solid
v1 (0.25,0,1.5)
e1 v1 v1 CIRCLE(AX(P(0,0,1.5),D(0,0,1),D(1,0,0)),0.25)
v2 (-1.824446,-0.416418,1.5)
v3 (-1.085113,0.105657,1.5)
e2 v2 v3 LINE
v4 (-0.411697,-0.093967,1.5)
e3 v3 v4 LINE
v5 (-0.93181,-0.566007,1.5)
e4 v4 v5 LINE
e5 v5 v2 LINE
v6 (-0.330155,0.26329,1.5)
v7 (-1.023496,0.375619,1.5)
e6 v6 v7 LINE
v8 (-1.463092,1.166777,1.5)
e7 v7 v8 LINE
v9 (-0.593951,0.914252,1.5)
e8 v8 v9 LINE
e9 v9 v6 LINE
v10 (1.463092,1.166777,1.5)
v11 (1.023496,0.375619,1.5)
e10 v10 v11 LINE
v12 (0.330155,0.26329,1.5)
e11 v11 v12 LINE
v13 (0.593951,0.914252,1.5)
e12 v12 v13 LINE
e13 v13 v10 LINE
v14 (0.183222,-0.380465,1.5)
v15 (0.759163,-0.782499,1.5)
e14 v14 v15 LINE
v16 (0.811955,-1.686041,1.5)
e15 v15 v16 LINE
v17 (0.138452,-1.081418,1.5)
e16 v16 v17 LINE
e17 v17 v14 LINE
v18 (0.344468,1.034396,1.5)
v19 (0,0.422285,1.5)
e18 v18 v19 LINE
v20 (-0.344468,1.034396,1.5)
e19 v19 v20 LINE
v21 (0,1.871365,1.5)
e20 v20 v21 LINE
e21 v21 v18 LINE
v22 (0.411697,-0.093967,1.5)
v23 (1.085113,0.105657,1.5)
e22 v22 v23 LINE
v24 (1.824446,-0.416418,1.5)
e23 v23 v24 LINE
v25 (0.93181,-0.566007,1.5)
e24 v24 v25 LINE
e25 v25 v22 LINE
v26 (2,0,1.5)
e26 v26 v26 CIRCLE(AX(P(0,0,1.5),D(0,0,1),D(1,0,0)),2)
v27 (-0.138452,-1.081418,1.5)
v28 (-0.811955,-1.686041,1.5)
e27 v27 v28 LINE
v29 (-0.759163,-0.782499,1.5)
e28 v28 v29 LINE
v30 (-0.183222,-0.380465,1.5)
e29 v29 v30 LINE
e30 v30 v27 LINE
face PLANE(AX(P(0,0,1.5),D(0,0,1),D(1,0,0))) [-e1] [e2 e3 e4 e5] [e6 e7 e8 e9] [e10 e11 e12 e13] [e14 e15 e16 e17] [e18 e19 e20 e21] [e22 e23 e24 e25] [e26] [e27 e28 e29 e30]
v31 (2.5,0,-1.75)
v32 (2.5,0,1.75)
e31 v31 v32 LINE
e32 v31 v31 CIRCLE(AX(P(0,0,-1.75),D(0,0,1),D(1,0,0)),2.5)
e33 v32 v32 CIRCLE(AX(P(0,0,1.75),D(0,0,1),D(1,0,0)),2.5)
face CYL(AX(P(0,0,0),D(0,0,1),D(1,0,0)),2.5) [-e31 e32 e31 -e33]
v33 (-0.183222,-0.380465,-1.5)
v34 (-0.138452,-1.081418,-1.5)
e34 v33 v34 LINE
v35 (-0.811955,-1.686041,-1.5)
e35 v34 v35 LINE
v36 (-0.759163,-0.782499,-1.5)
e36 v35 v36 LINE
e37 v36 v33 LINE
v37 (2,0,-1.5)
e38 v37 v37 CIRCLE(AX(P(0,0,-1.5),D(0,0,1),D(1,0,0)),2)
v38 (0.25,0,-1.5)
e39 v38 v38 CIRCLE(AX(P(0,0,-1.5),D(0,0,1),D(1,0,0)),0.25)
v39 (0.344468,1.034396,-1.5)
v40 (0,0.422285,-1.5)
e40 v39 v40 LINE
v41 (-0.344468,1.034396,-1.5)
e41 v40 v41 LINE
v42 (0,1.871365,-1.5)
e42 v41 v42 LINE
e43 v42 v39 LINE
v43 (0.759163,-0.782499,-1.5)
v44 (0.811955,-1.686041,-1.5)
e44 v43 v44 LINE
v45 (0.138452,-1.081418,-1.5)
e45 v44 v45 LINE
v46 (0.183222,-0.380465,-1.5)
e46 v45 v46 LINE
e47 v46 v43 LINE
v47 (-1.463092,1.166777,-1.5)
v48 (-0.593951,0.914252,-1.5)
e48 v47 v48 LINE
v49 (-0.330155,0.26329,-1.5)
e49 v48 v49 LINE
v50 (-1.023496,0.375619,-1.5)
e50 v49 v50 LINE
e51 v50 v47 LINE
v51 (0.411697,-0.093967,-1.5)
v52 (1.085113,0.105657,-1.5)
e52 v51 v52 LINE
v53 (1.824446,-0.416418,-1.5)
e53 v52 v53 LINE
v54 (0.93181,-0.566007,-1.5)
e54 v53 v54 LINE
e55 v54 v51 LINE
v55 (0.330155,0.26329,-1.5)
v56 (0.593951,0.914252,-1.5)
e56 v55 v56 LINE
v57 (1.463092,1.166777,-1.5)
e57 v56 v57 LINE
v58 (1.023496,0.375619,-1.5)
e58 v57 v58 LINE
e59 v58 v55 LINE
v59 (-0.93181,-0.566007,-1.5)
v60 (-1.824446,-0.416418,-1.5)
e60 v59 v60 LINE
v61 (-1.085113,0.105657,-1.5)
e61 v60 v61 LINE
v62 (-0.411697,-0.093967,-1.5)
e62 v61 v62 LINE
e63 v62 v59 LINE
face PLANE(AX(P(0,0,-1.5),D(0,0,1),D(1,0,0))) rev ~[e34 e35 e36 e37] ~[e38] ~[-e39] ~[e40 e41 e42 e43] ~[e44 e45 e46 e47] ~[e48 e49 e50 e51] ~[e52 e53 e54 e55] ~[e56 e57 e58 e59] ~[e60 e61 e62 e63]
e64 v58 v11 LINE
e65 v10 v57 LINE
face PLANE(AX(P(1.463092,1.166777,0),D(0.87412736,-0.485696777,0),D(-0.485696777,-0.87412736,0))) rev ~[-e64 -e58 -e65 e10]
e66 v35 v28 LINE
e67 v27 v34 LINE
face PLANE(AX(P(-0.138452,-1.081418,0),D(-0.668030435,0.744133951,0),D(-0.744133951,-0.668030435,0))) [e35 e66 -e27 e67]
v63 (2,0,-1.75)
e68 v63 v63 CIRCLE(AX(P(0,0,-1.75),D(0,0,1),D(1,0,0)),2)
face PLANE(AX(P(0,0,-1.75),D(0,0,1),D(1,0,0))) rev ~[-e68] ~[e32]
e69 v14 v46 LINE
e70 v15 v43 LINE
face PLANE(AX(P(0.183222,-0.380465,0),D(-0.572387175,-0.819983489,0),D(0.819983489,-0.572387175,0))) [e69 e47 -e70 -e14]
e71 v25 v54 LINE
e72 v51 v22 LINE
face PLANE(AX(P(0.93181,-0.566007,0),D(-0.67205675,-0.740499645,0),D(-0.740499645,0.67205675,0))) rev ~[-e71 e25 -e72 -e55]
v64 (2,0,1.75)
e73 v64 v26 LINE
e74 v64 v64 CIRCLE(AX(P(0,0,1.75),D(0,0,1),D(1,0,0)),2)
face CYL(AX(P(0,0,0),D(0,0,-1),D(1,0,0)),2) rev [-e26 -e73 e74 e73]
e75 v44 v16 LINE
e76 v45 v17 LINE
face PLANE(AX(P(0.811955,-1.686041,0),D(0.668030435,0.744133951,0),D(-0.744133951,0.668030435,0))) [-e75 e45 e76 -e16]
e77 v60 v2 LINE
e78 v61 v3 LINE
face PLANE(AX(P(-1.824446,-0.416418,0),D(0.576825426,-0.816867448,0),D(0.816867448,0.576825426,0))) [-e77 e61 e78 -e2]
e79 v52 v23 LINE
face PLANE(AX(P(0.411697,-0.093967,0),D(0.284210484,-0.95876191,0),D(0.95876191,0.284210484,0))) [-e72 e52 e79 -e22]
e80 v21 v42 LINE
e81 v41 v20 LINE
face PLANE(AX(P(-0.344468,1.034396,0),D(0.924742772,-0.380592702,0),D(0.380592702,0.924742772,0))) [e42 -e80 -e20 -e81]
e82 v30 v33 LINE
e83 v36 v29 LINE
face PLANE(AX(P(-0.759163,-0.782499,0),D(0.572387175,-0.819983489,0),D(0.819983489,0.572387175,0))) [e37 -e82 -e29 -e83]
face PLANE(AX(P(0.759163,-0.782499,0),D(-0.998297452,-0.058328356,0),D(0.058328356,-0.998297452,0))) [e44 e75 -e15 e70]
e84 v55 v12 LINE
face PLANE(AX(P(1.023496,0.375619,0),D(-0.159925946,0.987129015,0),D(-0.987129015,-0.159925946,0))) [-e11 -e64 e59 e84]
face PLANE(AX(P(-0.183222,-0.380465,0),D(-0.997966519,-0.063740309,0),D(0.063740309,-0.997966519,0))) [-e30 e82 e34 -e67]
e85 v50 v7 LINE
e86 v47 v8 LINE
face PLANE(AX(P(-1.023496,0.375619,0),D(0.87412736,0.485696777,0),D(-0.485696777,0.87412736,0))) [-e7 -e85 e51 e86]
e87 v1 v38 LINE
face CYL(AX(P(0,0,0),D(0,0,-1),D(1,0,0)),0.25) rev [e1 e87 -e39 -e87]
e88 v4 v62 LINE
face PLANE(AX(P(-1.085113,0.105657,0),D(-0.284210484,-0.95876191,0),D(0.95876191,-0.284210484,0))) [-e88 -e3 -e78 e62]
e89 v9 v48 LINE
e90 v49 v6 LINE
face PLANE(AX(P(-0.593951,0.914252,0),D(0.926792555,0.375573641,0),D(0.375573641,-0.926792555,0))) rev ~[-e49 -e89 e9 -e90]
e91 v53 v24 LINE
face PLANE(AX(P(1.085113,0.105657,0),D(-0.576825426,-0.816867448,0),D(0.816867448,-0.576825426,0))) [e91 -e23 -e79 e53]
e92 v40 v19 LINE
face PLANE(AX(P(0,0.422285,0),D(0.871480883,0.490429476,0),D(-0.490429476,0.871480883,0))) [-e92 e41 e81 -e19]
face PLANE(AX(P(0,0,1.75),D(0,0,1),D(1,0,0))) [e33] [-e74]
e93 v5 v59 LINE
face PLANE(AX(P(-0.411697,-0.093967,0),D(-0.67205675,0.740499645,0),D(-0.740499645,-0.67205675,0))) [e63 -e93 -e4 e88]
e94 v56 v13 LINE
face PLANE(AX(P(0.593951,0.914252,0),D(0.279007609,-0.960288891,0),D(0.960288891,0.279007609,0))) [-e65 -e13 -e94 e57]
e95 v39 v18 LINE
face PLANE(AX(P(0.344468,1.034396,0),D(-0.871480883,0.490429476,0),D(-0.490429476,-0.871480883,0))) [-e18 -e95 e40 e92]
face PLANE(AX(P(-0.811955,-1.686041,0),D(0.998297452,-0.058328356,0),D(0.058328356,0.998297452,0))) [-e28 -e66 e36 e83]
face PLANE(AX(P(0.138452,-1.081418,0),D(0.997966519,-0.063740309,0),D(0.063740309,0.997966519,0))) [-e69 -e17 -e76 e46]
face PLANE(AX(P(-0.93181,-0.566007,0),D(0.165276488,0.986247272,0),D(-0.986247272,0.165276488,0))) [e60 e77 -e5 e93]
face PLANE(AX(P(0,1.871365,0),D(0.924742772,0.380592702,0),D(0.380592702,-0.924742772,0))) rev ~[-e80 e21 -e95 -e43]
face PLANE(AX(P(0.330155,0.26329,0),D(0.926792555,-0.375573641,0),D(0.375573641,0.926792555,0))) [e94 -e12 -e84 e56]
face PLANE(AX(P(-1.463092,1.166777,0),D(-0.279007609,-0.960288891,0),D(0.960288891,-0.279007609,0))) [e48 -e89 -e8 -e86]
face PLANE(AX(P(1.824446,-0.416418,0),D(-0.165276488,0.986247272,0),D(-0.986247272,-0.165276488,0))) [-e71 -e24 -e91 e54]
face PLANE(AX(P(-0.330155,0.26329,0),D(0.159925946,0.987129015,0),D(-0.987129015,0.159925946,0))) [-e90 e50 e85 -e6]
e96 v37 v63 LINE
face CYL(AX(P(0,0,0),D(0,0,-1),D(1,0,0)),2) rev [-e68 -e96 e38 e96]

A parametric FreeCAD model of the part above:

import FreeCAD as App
import Part
import Sketcher
Q = App.Units.Quantity


def add_polygon(sketch, points):
    """Adds a closed chain of lines whose ends are joined by coincident constraints."""
    first, n = sketch.GeometryCount, len(points)
    for a, b in zip(points, points[1:] + points[:1]):
        sketch.addGeometry(Part.LineSegment(App.Vector(*a, 0), App.Vector(*b, 0)), False)
    for i in range(n):
        sketch.addConstraint(Sketcher.Constraint("Coincident", first + i, 2, first + (i + 1) % n, 1))

doc = App.newDocument("Part")
params = doc.addObject("Spreadsheet::Sheet", "Params")
for row, (alias, value) in enumerate([
    ("sketch1_diameter", "4 mm"),
    ("sketch1_diameter2", "0.5 mm"),
    ("pad1_length", "3 mm"),
    ("sketch2_diameter", "5 mm"),
    ("sketch2_diameter2", "4 mm"),
    ("pad2_length", "3.5 mm"),
], start=1):
    params.set(f"A{row}", alias)
    params.set(f"B{row}", "=" + value)
    params.setAlias(f"B{row}", alias)

body = doc.addObject("PartDesign::Body", "Body")

sketch1 = doc.addObject("Sketcher::SketchObject", "Sketch")
body.addObject(sketch1)
sketch1.AttachmentSupport = (doc.XY_Plane, [""])
sketch1.MapMode = "FlatFace"
sketch1.addGeometry(Part.Circle(App.Vector(0, 0, 0), App.Vector(0, 0, 1), 2), False)
add_polygon(sketch1, [(-0.14, -1.08), (-0.81, -1.69), (-0.76, -0.78), (-0.18, -0.38)])
add_polygon(sketch1, [(-0.93, -0.57), (-1.82, -0.42), (-1.09, 0.11), (-0.41, -0.09)])
add_polygon(sketch1, [(0.76, -0.78), (0.81, -1.69), (0.14, -1.08), (0.18, -0.38)])
sketch1.addGeometry(Part.Circle(App.Vector(0, 0, 0), App.Vector(0, 0, 1), 0.25), False)
add_polygon(sketch1, [(1.09, 0.11), (1.82, -0.42), (0.93, -0.57), (0.41, -0.09)])
add_polygon(sketch1, [(-1.02, 0.38), (-1.46, 1.17), (-0.59, 0.91), (-0.33, 0.26)])
add_polygon(sketch1, [(0.59, 0.91), (1.46, 1.17), (1.02, 0.38), (0.33, 0.26)])
add_polygon(sketch1, [(0, 0.42), (-0.34, 1.03), (0, 1.87), (0.34, 1.03)])
sketch1.addConstraint(Sketcher.Constraint("Coincident", 0, 3, -1, 1))
sketch1.addConstraint(Sketcher.Constraint("Coincident", 13, 3, -1, 1))
sketch1.addConstraint(Sketcher.Constraint("Symmetric", 1, 2, 9, 2, -2))
sketch1.addConstraint(Sketcher.Constraint("Symmetric", 4, 2, 10, 2, -2))
sketch1.addConstraint(Sketcher.Constraint("Symmetric", 3, 2, 11, 2, -2))
sketch1.addConstraint(Sketcher.Constraint("Symmetric", 2, 2, 12, 2, -2))
sketch1.addConstraint(Sketcher.Constraint("Symmetric", 5, 2, 14, 2, -2))
sketch1.addConstraint(Sketcher.Constraint("Symmetric", 8, 2, 15, 2, -2))
sketch1.addConstraint(Sketcher.Constraint("Symmetric", 7, 2, 16, 2, -2))
sketch1.addConstraint(Sketcher.Constraint("Symmetric", 6, 2, 17, 2, -2))
sketch1.addConstraint(Sketcher.Constraint("Symmetric", 18, 2, 22, 2, -2))
sketch1.addConstraint(Sketcher.Constraint("Symmetric", 21, 2, 23, 2, -2))
sketch1.addConstraint(Sketcher.Constraint("Symmetric", 20, 2, 24, 2, -2))
sketch1.addConstraint(Sketcher.Constraint("Symmetric", 19, 2, 25, 2, -2))
sketch1.addConstraint(Sketcher.Constraint("Symmetric", 26, 2, 28, 2, -2))
sketch1.addConstraint(Sketcher.Constraint("PointOnObject", 27, 2, -2))
sketch1.addConstraint(Sketcher.Constraint("PointOnObject", 29, 2, -2))
sketch1.addConstraint(Sketcher.Constraint("Equal", 1, 2))
sketch1.addConstraint(Sketcher.Constraint("Equal", 3, 4))
sketch1.addConstraint(Sketcher.Constraint("Equal", 2, 5))
sketch1.addConstraint(Sketcher.Constraint("Equal", 5, 6))
sketch1.addConstraint(Sketcher.Constraint("Equal", 4, 7))
sketch1.addConstraint(Sketcher.Constraint("Equal", 7, 8))
sketch1.addConstraint(Sketcher.Constraint("Equal", 15, 18))
sketch1.addConstraint(Sketcher.Constraint("Equal", 18, 19))
sketch1.addConstraint(Sketcher.Constraint("Equal", 17, 20))
sketch1.addConstraint(Sketcher.Constraint("Equal", 20, 21))
sketch1.addConstraint(Sketcher.Constraint("Equal", 25, 26))
sketch1.addConstraint(Sketcher.Constraint("Equal", 23, 27))
sketch1.addConstraint(Sketcher.Constraint("Diameter", 0, Q("4 mm")))
sketch1.addConstraint(Sketcher.Constraint("Diameter", 13, Q("0.5 mm")))
sketch1.addConstraint(Sketcher.Constraint("DistanceY", 4, 2, 5, 2, Q("0.665 mm")))
sketch1.addConstraint(Sketcher.Constraint("DistanceY", 2, 2, -1, 1, Q("0.782499 mm")))
sketch1.addConstraint(Sketcher.Constraint("DistanceY", 3, 2, 7, 2, Q("0.286498 mm")))
sketch1.addConstraint(Sketcher.Constraint("DistanceX", 21, 2, 7, 2, Q("0.611799 mm")))
sketch1.addConstraint(Sketcher.Constraint("Distance", 3, Q("0.702381 mm")))
sketch1.addConstraint(Sketcher.Constraint("DistanceY", 1, 2, -1, 1, Q("1.686041 mm")))
sketch1.addConstraint(Sketcher.Constraint("DistanceX", 8, 2, -1, 1, Q("0.93181 mm")))
sketch1.addConstraint(Sketcher.Constraint("DistanceX", 19, 2, -1, 1, Q("0.593951 mm")))
sketch1.addConstraint(Sketcher.Constraint("DistanceY", -1, 1, 19, 2, Q("0.914252 mm")))
sketch1.addConstraint(Sketcher.Constraint("DistanceY", -1, 1, 20, 2, Q("0.26329 mm")))
sketch1.addConstraint(Sketcher.Constraint("DistanceY", -1, 1, 21, 2, Q("0.375619 mm")))
sketch1.addConstraint(Sketcher.Constraint("DistanceX", 1, 2, 2, 2, Q("0.052792 mm")))
sketch1.addConstraint(Sketcher.Constraint("DistanceX", 2, 2, 3, 2, Q("0.575941 mm")))
sketch1.addConstraint(Sketcher.Constraint("DistanceX", 5, 2, 1, 2, Q("1.012491 mm")))
sketch1.addConstraint(Sketcher.Constraint("DistanceX", 26, 2, 25, 2, Q("0.938419 mm")))
sketch1.addConstraint(Sketcher.Constraint("DistanceY", -1, 1, 26, 2, Q("1.034396 mm")))
sketch1.setExpression("Constraints[57]", "Params.sketch1_diameter")
sketch1.setExpression("Constraints[58]", "Params.sketch1_diameter2")
pad1 = doc.addObject("PartDesign::Pad", "Pad")
body.addObject(pad1)
pad1.Profile = sketch1
pad1.setExpression("Length", "Params.pad1_length")
pad1.Midplane = True

sketch2 = doc.addObject("Sketcher::SketchObject", "Sketch001")
body.addObject(sketch2)
sketch2.AttachmentSupport = (doc.XY_Plane, [""])
sketch2.MapMode = "FlatFace"
sketch2.addGeometry(Part.Circle(App.Vector(0, 0, 0), App.Vector(0, 0, 1), 2.5), False)
sketch2.addGeometry(Part.Circle(App.Vector(0, 0, 0), App.Vector(0, 0, 1), 2), False)
sketch2.addConstraint(Sketcher.Constraint("Coincident", 0, 3, -1, 1))
sketch2.addConstraint(Sketcher.Constraint("Coincident", 1, 3, -1, 1))
sketch2.addConstraint(Sketcher.Constraint("Diameter", 0, Q("5 mm")))
sketch2.addConstraint(Sketcher.Constraint("Diameter", 1, Q("4 mm")))
sketch2.setExpression("Constraints[2]", "Params.sketch2_diameter")
sketch2.setExpression("Constraints[3]", "Params.sketch2_diameter2")
pad2 = doc.addObject("PartDesign::Pad", "Pad001")
body.addObject(pad2)
pad2.Profile = sketch2
pad2.setExpression("Length", "Params.pad2_length")
pad2.Midplane = True

doc.recompute()
